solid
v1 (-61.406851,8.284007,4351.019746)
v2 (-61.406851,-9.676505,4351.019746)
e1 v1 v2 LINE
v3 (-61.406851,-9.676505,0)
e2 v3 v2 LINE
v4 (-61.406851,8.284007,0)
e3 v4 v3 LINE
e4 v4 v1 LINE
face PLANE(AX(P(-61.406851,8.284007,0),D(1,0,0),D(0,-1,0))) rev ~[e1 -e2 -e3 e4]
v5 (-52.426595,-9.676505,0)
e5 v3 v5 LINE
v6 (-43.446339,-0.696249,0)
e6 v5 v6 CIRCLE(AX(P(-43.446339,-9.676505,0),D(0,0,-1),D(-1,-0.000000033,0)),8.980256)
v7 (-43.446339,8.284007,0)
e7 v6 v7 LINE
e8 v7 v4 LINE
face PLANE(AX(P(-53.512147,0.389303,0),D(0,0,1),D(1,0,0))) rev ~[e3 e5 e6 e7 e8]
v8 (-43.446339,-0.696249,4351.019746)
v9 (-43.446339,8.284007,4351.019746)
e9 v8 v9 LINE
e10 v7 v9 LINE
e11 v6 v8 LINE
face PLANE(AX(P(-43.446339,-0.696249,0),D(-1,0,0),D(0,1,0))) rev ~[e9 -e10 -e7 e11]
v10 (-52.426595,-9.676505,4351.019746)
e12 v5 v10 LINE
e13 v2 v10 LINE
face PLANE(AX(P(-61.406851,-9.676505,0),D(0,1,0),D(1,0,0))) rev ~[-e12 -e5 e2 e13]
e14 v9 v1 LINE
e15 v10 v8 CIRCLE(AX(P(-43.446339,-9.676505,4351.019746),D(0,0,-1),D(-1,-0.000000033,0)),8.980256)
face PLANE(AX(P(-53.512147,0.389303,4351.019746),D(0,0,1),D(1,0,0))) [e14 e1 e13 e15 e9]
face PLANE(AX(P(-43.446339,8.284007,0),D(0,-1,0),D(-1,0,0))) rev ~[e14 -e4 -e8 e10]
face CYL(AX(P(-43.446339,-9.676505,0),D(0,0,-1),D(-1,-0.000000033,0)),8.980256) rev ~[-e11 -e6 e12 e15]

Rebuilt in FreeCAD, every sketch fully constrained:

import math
import FreeCAD as App
import Part
import Sketcher

V = App.Vector

doc = App.newDocument("Part")
body = doc.addObject("PartDesign::Body", "Body")

# Sketch on XY plane
sketch1 = doc.addObject("Sketcher::SketchObject", "Sketch")
body.addObject(sketch1)
sketch1.AttachmentSupport = (doc.XY_Plane, [""])
sketch1.MapMode = "FlatFace"
sketch1.addGeometry([
    Part.LineSegment(V(-61, -10, 0), V(-52, -10, 0)),  # 0
    Part.ArcOfCircle(Part.Circle(V(-43, -10, 0), V(0, 0, 1), 9), math.radians(90), math.radians(180)),  # 1
    Part.LineSegment(V(-43, -1, 0), V(-43, 8, 0)),  # 2
    Part.LineSegment(V(-43, 8, 0), V(-61, 8, 0)),  # 3
    Part.LineSegment(V(-61, 8, 0), V(-61, -10, 0)),  # 4
], False)
sketch1.addConstraint([
    Sketcher.Constraint("Coincident", 0, 2, 1, 2),
    Sketcher.Constraint("Coincident", 1, 1, 2, 1),
    Sketcher.Constraint("Coincident", 2, 2, 3, 1),
    Sketcher.Constraint("Coincident", 3, 2, 4, 1),
    Sketcher.Constraint("Coincident", 4, 2, 0, 1),
    Sketcher.Constraint("Horizontal", 0),
    Sketcher.Constraint("Vertical", 2),
    Sketcher.Constraint("Horizontal", 3),
    Sketcher.Constraint("Vertical", 4),
    Sketcher.Constraint("Horizontal", 1, 3, 0, 2),
    Sketcher.Constraint("Equal", 0, 2),
    Sketcher.Constraint("Equal", 3, 4),
    Sketcher.Constraint("Radius", 1, 8.980256),
    Sketcher.Constraint("DistanceX", 0, 1, 0, 2, 8.980256),
    Sketcher.Constraint("DistanceX", 1, 3, -1, 1, 43.446339),
    Sketcher.Constraint("DistanceY", 1, 1, -1, 1, 0.696249),
])
pad1 = doc.addObject("PartDesign::Pad", "Pad")
body.addObject(pad1)
pad1.Profile = sketch1
pad1.Length = 4351.019746

doc.recompute()
